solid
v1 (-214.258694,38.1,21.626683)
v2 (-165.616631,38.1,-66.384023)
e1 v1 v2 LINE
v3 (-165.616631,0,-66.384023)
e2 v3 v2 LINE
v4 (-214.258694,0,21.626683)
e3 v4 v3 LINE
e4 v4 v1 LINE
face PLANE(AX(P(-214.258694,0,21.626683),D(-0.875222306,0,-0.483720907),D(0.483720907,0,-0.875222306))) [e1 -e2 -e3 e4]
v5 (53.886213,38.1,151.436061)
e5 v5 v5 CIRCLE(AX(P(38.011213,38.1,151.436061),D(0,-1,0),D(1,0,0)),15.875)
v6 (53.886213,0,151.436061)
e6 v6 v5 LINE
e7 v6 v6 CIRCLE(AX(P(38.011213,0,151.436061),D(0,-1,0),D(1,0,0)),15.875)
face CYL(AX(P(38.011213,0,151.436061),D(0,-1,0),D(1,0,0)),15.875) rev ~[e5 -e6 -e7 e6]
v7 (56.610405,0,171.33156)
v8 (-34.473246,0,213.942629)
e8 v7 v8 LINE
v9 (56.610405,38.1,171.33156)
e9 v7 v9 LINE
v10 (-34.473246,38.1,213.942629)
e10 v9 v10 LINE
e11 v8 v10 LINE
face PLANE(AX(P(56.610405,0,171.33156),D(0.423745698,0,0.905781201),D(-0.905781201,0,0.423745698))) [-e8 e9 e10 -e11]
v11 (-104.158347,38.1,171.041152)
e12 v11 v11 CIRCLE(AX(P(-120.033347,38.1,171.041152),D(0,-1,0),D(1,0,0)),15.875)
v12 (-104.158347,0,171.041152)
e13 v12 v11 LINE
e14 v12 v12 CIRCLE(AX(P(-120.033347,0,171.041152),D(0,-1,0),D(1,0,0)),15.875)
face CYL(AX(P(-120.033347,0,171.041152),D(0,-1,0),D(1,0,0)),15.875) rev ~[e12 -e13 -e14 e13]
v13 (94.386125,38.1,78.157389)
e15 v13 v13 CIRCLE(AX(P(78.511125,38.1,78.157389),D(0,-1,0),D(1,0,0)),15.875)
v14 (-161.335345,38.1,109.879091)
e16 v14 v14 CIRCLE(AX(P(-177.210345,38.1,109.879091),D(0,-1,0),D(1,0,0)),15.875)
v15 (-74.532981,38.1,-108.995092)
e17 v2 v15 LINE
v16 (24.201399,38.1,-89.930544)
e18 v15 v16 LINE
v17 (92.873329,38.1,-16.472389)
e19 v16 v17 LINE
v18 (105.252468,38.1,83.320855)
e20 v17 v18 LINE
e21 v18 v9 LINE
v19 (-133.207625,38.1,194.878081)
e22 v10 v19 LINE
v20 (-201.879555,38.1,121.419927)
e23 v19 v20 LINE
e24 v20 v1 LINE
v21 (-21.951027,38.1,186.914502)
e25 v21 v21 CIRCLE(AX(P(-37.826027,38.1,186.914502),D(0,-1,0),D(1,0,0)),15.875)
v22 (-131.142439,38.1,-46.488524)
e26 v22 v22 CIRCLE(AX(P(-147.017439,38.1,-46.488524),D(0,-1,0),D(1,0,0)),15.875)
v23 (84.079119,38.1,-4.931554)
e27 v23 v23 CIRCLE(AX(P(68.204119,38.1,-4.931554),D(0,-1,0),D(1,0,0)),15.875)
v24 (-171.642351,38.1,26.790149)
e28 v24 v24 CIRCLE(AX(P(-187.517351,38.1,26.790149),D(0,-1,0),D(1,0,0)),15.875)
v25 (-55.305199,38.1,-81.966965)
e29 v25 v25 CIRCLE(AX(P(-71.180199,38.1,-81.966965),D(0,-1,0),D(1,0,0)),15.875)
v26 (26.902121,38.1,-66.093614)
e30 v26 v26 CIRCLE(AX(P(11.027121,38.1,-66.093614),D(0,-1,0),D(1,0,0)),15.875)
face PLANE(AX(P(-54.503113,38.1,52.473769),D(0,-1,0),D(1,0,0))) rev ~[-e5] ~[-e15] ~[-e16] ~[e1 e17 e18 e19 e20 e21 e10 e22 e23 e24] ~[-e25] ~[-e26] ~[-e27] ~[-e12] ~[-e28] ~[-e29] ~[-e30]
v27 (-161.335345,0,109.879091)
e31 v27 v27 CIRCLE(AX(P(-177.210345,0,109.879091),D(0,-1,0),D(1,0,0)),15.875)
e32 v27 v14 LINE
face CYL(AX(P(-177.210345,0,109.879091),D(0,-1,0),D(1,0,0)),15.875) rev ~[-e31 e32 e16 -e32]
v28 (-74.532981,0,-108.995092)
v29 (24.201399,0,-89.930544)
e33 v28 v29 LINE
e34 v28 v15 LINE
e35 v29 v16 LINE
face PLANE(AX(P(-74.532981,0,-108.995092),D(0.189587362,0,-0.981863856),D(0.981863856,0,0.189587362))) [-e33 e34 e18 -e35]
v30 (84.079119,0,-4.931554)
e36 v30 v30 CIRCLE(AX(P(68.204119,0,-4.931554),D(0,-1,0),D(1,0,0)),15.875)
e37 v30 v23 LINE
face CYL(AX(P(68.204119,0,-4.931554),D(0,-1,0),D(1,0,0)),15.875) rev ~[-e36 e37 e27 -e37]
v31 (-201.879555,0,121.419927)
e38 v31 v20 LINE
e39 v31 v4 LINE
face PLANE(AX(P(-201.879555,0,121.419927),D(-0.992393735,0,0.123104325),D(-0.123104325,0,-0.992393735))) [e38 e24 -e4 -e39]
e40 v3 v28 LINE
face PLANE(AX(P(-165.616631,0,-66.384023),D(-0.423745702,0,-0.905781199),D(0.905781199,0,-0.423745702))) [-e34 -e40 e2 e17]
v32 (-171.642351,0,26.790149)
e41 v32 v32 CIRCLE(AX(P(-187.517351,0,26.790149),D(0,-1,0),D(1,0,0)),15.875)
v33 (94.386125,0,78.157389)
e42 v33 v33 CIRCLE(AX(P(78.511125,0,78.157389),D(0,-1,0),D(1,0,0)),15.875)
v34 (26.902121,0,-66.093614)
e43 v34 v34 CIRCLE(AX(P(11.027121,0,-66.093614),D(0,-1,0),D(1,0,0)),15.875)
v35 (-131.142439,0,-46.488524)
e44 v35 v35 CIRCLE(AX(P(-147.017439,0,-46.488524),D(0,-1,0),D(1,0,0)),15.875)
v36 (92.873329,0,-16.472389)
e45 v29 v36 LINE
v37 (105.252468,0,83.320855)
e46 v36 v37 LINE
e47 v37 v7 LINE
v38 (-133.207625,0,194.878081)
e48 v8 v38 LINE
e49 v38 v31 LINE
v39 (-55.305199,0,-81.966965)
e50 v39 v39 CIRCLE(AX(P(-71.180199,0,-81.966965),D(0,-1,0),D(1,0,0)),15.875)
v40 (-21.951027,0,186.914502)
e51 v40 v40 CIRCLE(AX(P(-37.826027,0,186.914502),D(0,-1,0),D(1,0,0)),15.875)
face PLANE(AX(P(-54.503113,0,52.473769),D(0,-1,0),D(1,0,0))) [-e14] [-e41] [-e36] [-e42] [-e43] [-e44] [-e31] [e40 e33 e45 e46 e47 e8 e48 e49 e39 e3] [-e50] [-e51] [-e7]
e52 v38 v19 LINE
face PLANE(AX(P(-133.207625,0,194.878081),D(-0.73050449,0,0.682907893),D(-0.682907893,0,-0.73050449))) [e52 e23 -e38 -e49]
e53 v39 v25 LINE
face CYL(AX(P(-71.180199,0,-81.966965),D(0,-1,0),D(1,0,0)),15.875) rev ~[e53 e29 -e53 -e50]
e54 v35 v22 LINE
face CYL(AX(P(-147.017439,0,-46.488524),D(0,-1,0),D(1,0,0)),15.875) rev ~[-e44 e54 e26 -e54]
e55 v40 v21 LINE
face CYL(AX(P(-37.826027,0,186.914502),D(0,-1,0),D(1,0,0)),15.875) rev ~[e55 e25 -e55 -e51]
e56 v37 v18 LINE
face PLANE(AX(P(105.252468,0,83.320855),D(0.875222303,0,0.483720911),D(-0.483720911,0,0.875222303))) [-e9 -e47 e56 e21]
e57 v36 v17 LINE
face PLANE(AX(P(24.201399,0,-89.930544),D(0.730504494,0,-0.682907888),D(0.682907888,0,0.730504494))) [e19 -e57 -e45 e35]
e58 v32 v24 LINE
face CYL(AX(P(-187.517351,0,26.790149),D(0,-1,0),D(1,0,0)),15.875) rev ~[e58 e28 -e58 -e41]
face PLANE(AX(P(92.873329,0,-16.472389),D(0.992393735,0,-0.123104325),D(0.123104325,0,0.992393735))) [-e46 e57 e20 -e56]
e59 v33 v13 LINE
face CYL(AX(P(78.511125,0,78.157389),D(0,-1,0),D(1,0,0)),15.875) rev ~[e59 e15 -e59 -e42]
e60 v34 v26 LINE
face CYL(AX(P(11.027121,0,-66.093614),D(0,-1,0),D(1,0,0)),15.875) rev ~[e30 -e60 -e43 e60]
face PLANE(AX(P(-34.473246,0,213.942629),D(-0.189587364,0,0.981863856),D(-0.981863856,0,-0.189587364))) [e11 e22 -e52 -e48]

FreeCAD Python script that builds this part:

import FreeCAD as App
import Part
import Sketcher

V = App.Vector
Q = App.Units.Quantity

doc = App.newDocument("Part")
body = doc.addObject("PartDesign::Body", "Body")

sketch1 = body.newObject("Sketcher::SketchObject", "Sketch")
sketch1.AttachmentSupport = (doc.getObject("XZ_Plane"), [""])
sketch1.MapMode = "FlatFace"
sketch1.addGeometry(Part.LineSegment(V(24, -90, 0), V(93, -16, 0)), False)
sketch1.addGeometry(Part.LineSegment(V(93, -16, 0), V(105, 83, 0)), False)
sketch1.addGeometry(Part.LineSegment(V(105, 83, 0), V(57, 171, 0)), False)
sketch1.addGeometry(Part.LineSegment(V(57, 171, 0), V(-34, 214, 0)), False)
sketch1.addGeometry(Part.LineSegment(V(-34, 214, 0), V(-133, 195, 0)), False)
sketch1.addGeometry(Part.LineSegment(V(-133, 195, 0), V(-202, 121, 0)), False)
sketch1.addGeometry(Part.LineSegment(V(-202, 121, 0), V(-214, 22, 0)), False)
sketch1.addGeometry(Part.LineSegment(V(-214, 22, 0), V(-166, -66, 0)), False)
sketch1.addGeometry(Part.LineSegment(V(-166, -66, 0), V(-75, -109, 0)), False)
sketch1.addGeometry(Part.LineSegment(V(-75, -109, 0), V(24, -90, 0)), False)
sketch1.addGeometry(Part.Circle(V(-147, -46, 0), V(0, 0, 1), 16), False)
sketch1.addGeometry(Part.Circle(V(-71, -82, 0), V(0, 0, 1), 16), False)
sketch1.addGeometry(Part.Circle(V(-188, 27, 0), V(0, 0, 1), 16), False)
sketch1.addGeometry(Part.Circle(V(11, -66, 0), V(0, 0, 1), 16), False)
sketch1.addGeometry(Part.Circle(V(68, -5, 0), V(0, 0, 1), 16), False)
sketch1.addGeometry(Part.Circle(V(-177, 110, 0), V(0, 0, 1), 16), False)
sketch1.addGeometry(Part.Circle(V(-120, 171, 0), V(0, 0, 1), 16), False)
sketch1.addGeometry(Part.Circle(V(79, 78, 0), V(0, 0, 1), 16), False)
sketch1.addGeometry(Part.Circle(V(-38, 187, 0), V(0, 0, 1), 16), False)
sketch1.addGeometry(Part.Circle(V(38, 151, 0), V(0, 0, 1), 16), False)
sketch1.addConstraint(Sketcher.Constraint("Coincident", 0, 2, 1, 1))
sketch1.addConstraint(Sketcher.Constraint("Coincident", 1, 2, 2, 1))
sketch1.addConstraint(Sketcher.Constraint("Coincident", 2, 2, 3, 1))
sketch1.addConstraint(Sketcher.Constraint("Coincident", 3, 2, 4, 1))
sketch1.addConstraint(Sketcher.Constraint("Coincident", 4, 2, 5, 1))
sketch1.addConstraint(Sketcher.Constraint("Coincident", 5, 2, 6, 1))
sketch1.addConstraint(Sketcher.Constraint("Coincident", 6, 2, 7, 1))
sketch1.addConstraint(Sketcher.Constraint("Coincident", 7, 2, 8, 1))
sketch1.addConstraint(Sketcher.Constraint("Coincident", 8, 2, 9, 1))
sketch1.addConstraint(Sketcher.Constraint("Coincident", 9, 2, 0, 1))
sketch1.addConstraint(Sketcher.Constraint("Equal", 10, 11))
sketch1.addConstraint(Sketcher.Constraint("Equal", 11, 12))
sketch1.addConstraint(Sketcher.Constraint("Equal", 12, 13))
sketch1.addConstraint(Sketcher.Constraint("Equal", 13, 14))
sketch1.addConstraint(Sketcher.Constraint("Equal", 14, 15))
sketch1.addConstraint(Sketcher.Constraint("Equal", 15, 16))
sketch1.addConstraint(Sketcher.Constraint("Equal", 16, 17))
sketch1.addConstraint(Sketcher.Constraint("Equal", 17, 18))
sketch1.addConstraint(Sketcher.Constraint("Equal", 18, 19))
sketch1.addConstraint(Sketcher.Constraint("Parallel", 0, 5))
sketch1.addConstraint(Sketcher.Constraint("Parallel", 1, 6))
sketch1.addConstraint(Sketcher.Constraint("Parallel", 2, 7))
sketch1.addConstraint(Sketcher.Constraint("Parallel", 3, 8))
sketch1.addConstraint(Sketcher.Constraint("Parallel", 4, 9))
sketch1.addConstraint(Sketcher.Constraint("Equal", 0, 1))
sketch1.addConstraint(Sketcher.Constraint("Equal", 1, 2))
sketch1.addConstraint(Sketcher.Constraint("Equal", 2, 3))
sketch1.addConstraint(Sketcher.Constraint("Equal", 3, 4))
sketch1.addConstraint(Sketcher.Constraint("Equal", 4, 5))
sketch1.addConstraint(Sketcher.Constraint("Equal", 5, 6))
sketch1.addConstraint(Sketcher.Constraint("Equal", 6, 7))
sketch1.addConstraint(Sketcher.Constraint("Diameter", 10, Q("1.25 in")))
sketch1.addConstraint(Sketcher.Constraint("DistanceX", 11, 3, -1, 1, 71.180199))
sketch1.addConstraint(Sketcher.Constraint("DistanceY", -1, 1, 18, 3, 186.914502))
sketch1.addConstraint(Sketcher.Constraint("DistanceX", -1, 1, 9, 2, 24.201399))
sketch1.addConstraint(Sketcher.Constraint("DistanceX", 13, 3, 14, 3, 57.176998))
sketch1.addConstraint(Sketcher.Constraint("DistanceY", 19, 3, 2, 2, 19.895499))
sketch1.addConstraint(Sketcher.Constraint("DistanceX", 16, 3, 3, 2, 85.560101))
sketch1.addConstraint(Sketcher.Constraint("DistanceX", 15, 3, 3, 2, 142.737099))
sketch1.addConstraint(Sketcher.Constraint("DistanceY", 7, 2, 10, 3, 19.895499))
sketch1.addConstraint(Sketcher.Constraint("DistanceX", 8, 2, 13, 3, 85.560102))
sketch1.addConstraint(Sketcher.Constraint("DistanceX", 10, 3, -1, 1, 147.017439))
sketch1.addConstraint(Sketcher.Constraint("DistanceX", 12, 3, -1, 1, 187.517351))
sketch1.addConstraint(Sketcher.Constraint("DistanceY", -1, 1, 12, 3, 26.790149))
sketch1.addConstraint(Sketcher.Constraint("DistanceX", -1, 1, 13, 3, 11.027121))
sketch1.addConstraint(Sketcher.Constraint("DistanceY", -1, 1, 15, 3, 109.879091))
sketch1.addConstraint(Sketcher.Constraint("DistanceY", -1, 1, 17, 3, 78.157389))
sketch1.addConstraint(Sketcher.Constraint("DistanceY", -1, 1, 19, 3, 151.436061))
sketch1.addConstraint(Sketcher.Constraint("DistanceX", -1, 1, 0, 2, 92.873329))
sketch1.addConstraint(Sketcher.Constraint("DistanceY", 0, 2, -1, 1, 16.472389))
sketch1.addConstraint(Sketcher.Constraint("DistanceY", -1, 1, 3, 2, 213.942629))
sketch1.addConstraint(Sketcher.Constraint("DistanceY", -1, 1, 4, 2, 194.878081))
sketch1.addConstraint(Sketcher.Constraint("DistanceY", 11, 3, 10, 3, 35.478441))
sketch1.addConstraint(Sketcher.Constraint("DistanceY", 11, 3, 13, 3, 15.873351))
sketch1.addConstraint(Sketcher.Constraint("DistanceY", 13, 3, 14, 3, 61.16206))
sketch1.addConstraint(Sketcher.Constraint("DistanceY", 15, 3, 16, 3, 61.162061))
sketch1.addConstraint(Sketcher.Constraint("DistanceX", 10, 3, 16, 3, 26.984092))
sketch1.addConstraint(Sketcher.Constraint("DistanceX", 15, 3, 17, 3, 255.72147))
sketch1.addConstraint(Sketcher.Constraint("DistanceX", 16, 3, 18, 3, 82.20732))
sketch1.addConstraint(Sketcher.Constraint("DistanceX", 18, 3, 19, 3, 75.83724))
pad1 = body.newObject("PartDesign::Pad", "Pad")
pad1.Profile = sketch1
pad1.Length = Q("1.5 in")
pad1.Reversed = True

doc.recompute()
